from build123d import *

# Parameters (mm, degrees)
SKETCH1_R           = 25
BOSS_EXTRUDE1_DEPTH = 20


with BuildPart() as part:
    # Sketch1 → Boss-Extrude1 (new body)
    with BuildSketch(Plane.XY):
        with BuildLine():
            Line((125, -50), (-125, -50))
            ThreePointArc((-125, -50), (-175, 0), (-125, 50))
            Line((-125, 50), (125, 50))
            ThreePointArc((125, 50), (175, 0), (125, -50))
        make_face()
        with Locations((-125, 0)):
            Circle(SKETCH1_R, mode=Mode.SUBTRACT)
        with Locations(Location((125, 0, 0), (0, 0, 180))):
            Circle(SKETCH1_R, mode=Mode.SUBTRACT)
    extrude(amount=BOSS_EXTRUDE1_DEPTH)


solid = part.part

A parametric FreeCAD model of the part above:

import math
import FreeCAD as App
import Part
import Sketcher

doc = App.newDocument("Part")
body = doc.addObject("PartDesign::Body", "Body")

sketch1 = body.newObject("Sketcher::SketchObject", "Sketch")
sketch1.AttachmentSupport = (doc.getObject("XY_Plane"), [""])
sketch1.MapMode = "FlatFace"
sketch1.addGeometry([
    Part.LineSegment(App.Vector(-125, -50, 0), App.Vector(125, -50, 0)),
    Part.ArcOfCircle(Part.Circle(App.Vector(125, 0, 0), App.Vector(0, 0, 1), 50), math.radians(-90), math.radians(90)),
    Part.LineSegment(App.Vector(125, 50, 0), App.Vector(-125, 50, 0)),
    Part.ArcOfCircle(Part.Circle(App.Vector(-125, 0, 0), App.Vector(0, 0, 1), 50), math.radians(90), math.radians(270)),
    Part.Circle(App.Vector(125, 0, 0), App.Vector(0, 0, 1), 25),
    Part.Circle(App.Vector(-125, 0, 0), App.Vector(0, 0, 1), 25),
], False)
sketch1.addConstraint([
    Sketcher.Constraint("Tangent", 0, 2, 1, 1),
    Sketcher.Constraint("Tangent", 1, 2, 2, 1),
    Sketcher.Constraint("Tangent", 2, 2, 3, 1),
    Sketcher.Constraint("Tangent", 3, 2, 0, 1),
    Sketcher.Constraint("Horizontal", 0),
    Sketcher.Constraint("Horizontal", 2),
    Sketcher.Constraint("Coincident", 4, 3, 1, 3),
    Sketcher.Constraint("Coincident", 5, 3, 3, 3),
    Sketcher.Constraint("Equal", 4, 5),
    Sketcher.Constraint("Symmetric", 1, 3, 3, 3, -1, 1),
    Sketcher.Constraint("Diameter", 4, 50.0),
    Sketcher.Constraint("Radius", 1, 50.0),
    Sketcher.Constraint("DistanceX", 0, 1, 0, 2, 250.0),
])
pad1 = body.newObject("PartDesign::Pad", "Pad")
pad1.Profile = sketch1
pad1.Length = 20

doc.recompute()
